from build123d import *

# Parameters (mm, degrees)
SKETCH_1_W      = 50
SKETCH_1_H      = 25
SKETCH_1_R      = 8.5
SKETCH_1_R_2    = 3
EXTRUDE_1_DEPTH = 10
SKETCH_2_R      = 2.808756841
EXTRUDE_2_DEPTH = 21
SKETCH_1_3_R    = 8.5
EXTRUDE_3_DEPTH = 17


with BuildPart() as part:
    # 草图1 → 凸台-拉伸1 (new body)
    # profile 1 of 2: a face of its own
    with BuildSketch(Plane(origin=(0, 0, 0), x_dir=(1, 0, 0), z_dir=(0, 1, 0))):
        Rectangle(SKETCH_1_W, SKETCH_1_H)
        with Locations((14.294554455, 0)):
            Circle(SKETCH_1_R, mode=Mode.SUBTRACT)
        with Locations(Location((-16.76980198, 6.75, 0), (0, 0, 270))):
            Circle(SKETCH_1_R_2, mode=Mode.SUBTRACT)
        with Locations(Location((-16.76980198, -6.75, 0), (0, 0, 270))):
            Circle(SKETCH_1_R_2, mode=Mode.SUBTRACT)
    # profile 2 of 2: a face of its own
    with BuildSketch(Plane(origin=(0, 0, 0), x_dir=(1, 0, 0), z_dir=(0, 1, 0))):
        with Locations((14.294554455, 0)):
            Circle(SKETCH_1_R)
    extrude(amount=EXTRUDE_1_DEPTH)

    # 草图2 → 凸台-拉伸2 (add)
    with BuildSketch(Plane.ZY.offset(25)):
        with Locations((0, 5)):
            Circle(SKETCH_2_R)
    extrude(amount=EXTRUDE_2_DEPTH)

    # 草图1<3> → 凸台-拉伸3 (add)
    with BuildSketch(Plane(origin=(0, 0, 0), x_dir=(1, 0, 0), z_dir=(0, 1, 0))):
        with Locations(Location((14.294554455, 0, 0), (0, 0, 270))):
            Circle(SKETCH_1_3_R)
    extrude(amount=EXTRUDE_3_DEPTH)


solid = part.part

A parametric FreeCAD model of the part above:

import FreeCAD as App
import Part
import Sketcher

V = App.Vector

doc = App.newDocument("Part")
body = doc.addObject("PartDesign::Body", "Body")

sketch1 = body.newObject("Sketcher::SketchObject", "Sketch")
sketch1.AttachmentSupport = (doc.getObject("XZ_Plane"), [""])
sketch1.MapMode = "FlatFace"
sketch1.addGeometry(Part.LineSegment(V(-25, -12.5, 0), V(-25, 12.5, 0)), False)
sketch1.addGeometry(Part.LineSegment(V(-25, 12.5, 0), V(25, 12.5, 0)), False)
sketch1.addGeometry(Part.LineSegment(V(25, 12.5, 0), V(25, -12.5, 0)), False)
sketch1.addGeometry(Part.LineSegment(V(25, -12.5, 0), V(-25, -12.5, 0)), False)
sketch1.addGeometry(Part.Circle(V(-16.8, 6.8, 0), V(0, 0, 1), 3), False)
sketch1.addGeometry(Part.Circle(V(-16.8, -6.8, 0), V(0, 0, 1), 3), False)
sketch1.addConstraint(Sketcher.Constraint("Coincident", 0, 2, 1, 1))
sketch1.addConstraint(Sketcher.Constraint("Coincident", 1, 2, 2, 1))
sketch1.addConstraint(Sketcher.Constraint("Coincident", 2, 2, 3, 1))
sketch1.addConstraint(Sketcher.Constraint("Coincident", 3, 2, 0, 1))
sketch1.addConstraint(Sketcher.Constraint("Vertical", 0))
sketch1.addConstraint(Sketcher.Constraint("Horizontal", 1))
sketch1.addConstraint(Sketcher.Constraint("Vertical", 2))
sketch1.addConstraint(Sketcher.Constraint("Horizontal", 3))
sketch1.addConstraint(Sketcher.Constraint("Equal", 4, 5))
sketch1.addConstraint(Sketcher.Constraint("Symmetric", 0, 2, 2, 2, -1, 1))
sketch1.addConstraint(Sketcher.Constraint("Symmetric", 4, 3, 5, 3, -1))
sketch1.addConstraint(Sketcher.Constraint("Diameter", 4, 6.0))
sketch1.addConstraint(Sketcher.Constraint("DistanceX", 1, 1, 1, 2, 50.0))
sketch1.addConstraint(Sketcher.Constraint("DistanceY", 0, 1, 0, 2, 25.0))
sketch1.addConstraint(Sketcher.Constraint("DistanceY", 5, 3, 4, 3, 13.5))
sketch1.addConstraint(Sketcher.Constraint("DistanceX", 4, 3, -1, 1, 16.769802))
pad1 = body.newObject("PartDesign::Pad", "Pad")
pad1.Profile = sketch1
pad1.Length = 10
pad1.Reversed = True

sketch2 = body.newObject("Sketcher::SketchObject", "Sketch001")
sketch2.AttachmentSupport = (doc.getObject("YZ_Plane"), [""])
sketch2.MapMode = "FlatFace"
sketch2.AttachmentOffset = App.Placement(V(0, 0, -25), App.Rotation())
sketch2.addGeometry(Part.Circle(V(5, 0, 0), V(0, 0, 1), 2.8), False)
sketch2.addConstraint(Sketcher.Constraint("PointOnObject", 0, 3, -1))
sketch2.addConstraint(Sketcher.Constraint("DistanceX", -1, 1, 0, 3, 5.0))
sketch2.addConstraint(Sketcher.Constraint("Diameter", 0, 5.617514))
pad2 = body.newObject("PartDesign::Pad", "Pad001")
pad2.Profile = sketch2
pad2.Length = 21
pad2.Reversed = True

sketch3 = body.newObject("Sketcher::SketchObject", "Sketch002")
sketch3.AttachmentSupport = (doc.getObject("XZ_Plane"), [""])
sketch3.MapMode = "FlatFace"
sketch3.addGeometry(Part.Circle(V(14, 0, 0), V(0, 0, 1), 8), False)
sketch3.addConstraint(Sketcher.Constraint("PointOnObject", 0, 3, -1))
sketch3.addConstraint(Sketcher.Constraint("Diameter", 0, 17.0))
sketch3.addConstraint(Sketcher.Constraint("DistanceX", -1, 1, 0, 3, 14.294554))
pad3 = body.newObject("PartDesign::Pad", "Pad002")
pad3.Profile = sketch3
pad3.Length = 17
pad3.Reversed = True

doc.recompute()
